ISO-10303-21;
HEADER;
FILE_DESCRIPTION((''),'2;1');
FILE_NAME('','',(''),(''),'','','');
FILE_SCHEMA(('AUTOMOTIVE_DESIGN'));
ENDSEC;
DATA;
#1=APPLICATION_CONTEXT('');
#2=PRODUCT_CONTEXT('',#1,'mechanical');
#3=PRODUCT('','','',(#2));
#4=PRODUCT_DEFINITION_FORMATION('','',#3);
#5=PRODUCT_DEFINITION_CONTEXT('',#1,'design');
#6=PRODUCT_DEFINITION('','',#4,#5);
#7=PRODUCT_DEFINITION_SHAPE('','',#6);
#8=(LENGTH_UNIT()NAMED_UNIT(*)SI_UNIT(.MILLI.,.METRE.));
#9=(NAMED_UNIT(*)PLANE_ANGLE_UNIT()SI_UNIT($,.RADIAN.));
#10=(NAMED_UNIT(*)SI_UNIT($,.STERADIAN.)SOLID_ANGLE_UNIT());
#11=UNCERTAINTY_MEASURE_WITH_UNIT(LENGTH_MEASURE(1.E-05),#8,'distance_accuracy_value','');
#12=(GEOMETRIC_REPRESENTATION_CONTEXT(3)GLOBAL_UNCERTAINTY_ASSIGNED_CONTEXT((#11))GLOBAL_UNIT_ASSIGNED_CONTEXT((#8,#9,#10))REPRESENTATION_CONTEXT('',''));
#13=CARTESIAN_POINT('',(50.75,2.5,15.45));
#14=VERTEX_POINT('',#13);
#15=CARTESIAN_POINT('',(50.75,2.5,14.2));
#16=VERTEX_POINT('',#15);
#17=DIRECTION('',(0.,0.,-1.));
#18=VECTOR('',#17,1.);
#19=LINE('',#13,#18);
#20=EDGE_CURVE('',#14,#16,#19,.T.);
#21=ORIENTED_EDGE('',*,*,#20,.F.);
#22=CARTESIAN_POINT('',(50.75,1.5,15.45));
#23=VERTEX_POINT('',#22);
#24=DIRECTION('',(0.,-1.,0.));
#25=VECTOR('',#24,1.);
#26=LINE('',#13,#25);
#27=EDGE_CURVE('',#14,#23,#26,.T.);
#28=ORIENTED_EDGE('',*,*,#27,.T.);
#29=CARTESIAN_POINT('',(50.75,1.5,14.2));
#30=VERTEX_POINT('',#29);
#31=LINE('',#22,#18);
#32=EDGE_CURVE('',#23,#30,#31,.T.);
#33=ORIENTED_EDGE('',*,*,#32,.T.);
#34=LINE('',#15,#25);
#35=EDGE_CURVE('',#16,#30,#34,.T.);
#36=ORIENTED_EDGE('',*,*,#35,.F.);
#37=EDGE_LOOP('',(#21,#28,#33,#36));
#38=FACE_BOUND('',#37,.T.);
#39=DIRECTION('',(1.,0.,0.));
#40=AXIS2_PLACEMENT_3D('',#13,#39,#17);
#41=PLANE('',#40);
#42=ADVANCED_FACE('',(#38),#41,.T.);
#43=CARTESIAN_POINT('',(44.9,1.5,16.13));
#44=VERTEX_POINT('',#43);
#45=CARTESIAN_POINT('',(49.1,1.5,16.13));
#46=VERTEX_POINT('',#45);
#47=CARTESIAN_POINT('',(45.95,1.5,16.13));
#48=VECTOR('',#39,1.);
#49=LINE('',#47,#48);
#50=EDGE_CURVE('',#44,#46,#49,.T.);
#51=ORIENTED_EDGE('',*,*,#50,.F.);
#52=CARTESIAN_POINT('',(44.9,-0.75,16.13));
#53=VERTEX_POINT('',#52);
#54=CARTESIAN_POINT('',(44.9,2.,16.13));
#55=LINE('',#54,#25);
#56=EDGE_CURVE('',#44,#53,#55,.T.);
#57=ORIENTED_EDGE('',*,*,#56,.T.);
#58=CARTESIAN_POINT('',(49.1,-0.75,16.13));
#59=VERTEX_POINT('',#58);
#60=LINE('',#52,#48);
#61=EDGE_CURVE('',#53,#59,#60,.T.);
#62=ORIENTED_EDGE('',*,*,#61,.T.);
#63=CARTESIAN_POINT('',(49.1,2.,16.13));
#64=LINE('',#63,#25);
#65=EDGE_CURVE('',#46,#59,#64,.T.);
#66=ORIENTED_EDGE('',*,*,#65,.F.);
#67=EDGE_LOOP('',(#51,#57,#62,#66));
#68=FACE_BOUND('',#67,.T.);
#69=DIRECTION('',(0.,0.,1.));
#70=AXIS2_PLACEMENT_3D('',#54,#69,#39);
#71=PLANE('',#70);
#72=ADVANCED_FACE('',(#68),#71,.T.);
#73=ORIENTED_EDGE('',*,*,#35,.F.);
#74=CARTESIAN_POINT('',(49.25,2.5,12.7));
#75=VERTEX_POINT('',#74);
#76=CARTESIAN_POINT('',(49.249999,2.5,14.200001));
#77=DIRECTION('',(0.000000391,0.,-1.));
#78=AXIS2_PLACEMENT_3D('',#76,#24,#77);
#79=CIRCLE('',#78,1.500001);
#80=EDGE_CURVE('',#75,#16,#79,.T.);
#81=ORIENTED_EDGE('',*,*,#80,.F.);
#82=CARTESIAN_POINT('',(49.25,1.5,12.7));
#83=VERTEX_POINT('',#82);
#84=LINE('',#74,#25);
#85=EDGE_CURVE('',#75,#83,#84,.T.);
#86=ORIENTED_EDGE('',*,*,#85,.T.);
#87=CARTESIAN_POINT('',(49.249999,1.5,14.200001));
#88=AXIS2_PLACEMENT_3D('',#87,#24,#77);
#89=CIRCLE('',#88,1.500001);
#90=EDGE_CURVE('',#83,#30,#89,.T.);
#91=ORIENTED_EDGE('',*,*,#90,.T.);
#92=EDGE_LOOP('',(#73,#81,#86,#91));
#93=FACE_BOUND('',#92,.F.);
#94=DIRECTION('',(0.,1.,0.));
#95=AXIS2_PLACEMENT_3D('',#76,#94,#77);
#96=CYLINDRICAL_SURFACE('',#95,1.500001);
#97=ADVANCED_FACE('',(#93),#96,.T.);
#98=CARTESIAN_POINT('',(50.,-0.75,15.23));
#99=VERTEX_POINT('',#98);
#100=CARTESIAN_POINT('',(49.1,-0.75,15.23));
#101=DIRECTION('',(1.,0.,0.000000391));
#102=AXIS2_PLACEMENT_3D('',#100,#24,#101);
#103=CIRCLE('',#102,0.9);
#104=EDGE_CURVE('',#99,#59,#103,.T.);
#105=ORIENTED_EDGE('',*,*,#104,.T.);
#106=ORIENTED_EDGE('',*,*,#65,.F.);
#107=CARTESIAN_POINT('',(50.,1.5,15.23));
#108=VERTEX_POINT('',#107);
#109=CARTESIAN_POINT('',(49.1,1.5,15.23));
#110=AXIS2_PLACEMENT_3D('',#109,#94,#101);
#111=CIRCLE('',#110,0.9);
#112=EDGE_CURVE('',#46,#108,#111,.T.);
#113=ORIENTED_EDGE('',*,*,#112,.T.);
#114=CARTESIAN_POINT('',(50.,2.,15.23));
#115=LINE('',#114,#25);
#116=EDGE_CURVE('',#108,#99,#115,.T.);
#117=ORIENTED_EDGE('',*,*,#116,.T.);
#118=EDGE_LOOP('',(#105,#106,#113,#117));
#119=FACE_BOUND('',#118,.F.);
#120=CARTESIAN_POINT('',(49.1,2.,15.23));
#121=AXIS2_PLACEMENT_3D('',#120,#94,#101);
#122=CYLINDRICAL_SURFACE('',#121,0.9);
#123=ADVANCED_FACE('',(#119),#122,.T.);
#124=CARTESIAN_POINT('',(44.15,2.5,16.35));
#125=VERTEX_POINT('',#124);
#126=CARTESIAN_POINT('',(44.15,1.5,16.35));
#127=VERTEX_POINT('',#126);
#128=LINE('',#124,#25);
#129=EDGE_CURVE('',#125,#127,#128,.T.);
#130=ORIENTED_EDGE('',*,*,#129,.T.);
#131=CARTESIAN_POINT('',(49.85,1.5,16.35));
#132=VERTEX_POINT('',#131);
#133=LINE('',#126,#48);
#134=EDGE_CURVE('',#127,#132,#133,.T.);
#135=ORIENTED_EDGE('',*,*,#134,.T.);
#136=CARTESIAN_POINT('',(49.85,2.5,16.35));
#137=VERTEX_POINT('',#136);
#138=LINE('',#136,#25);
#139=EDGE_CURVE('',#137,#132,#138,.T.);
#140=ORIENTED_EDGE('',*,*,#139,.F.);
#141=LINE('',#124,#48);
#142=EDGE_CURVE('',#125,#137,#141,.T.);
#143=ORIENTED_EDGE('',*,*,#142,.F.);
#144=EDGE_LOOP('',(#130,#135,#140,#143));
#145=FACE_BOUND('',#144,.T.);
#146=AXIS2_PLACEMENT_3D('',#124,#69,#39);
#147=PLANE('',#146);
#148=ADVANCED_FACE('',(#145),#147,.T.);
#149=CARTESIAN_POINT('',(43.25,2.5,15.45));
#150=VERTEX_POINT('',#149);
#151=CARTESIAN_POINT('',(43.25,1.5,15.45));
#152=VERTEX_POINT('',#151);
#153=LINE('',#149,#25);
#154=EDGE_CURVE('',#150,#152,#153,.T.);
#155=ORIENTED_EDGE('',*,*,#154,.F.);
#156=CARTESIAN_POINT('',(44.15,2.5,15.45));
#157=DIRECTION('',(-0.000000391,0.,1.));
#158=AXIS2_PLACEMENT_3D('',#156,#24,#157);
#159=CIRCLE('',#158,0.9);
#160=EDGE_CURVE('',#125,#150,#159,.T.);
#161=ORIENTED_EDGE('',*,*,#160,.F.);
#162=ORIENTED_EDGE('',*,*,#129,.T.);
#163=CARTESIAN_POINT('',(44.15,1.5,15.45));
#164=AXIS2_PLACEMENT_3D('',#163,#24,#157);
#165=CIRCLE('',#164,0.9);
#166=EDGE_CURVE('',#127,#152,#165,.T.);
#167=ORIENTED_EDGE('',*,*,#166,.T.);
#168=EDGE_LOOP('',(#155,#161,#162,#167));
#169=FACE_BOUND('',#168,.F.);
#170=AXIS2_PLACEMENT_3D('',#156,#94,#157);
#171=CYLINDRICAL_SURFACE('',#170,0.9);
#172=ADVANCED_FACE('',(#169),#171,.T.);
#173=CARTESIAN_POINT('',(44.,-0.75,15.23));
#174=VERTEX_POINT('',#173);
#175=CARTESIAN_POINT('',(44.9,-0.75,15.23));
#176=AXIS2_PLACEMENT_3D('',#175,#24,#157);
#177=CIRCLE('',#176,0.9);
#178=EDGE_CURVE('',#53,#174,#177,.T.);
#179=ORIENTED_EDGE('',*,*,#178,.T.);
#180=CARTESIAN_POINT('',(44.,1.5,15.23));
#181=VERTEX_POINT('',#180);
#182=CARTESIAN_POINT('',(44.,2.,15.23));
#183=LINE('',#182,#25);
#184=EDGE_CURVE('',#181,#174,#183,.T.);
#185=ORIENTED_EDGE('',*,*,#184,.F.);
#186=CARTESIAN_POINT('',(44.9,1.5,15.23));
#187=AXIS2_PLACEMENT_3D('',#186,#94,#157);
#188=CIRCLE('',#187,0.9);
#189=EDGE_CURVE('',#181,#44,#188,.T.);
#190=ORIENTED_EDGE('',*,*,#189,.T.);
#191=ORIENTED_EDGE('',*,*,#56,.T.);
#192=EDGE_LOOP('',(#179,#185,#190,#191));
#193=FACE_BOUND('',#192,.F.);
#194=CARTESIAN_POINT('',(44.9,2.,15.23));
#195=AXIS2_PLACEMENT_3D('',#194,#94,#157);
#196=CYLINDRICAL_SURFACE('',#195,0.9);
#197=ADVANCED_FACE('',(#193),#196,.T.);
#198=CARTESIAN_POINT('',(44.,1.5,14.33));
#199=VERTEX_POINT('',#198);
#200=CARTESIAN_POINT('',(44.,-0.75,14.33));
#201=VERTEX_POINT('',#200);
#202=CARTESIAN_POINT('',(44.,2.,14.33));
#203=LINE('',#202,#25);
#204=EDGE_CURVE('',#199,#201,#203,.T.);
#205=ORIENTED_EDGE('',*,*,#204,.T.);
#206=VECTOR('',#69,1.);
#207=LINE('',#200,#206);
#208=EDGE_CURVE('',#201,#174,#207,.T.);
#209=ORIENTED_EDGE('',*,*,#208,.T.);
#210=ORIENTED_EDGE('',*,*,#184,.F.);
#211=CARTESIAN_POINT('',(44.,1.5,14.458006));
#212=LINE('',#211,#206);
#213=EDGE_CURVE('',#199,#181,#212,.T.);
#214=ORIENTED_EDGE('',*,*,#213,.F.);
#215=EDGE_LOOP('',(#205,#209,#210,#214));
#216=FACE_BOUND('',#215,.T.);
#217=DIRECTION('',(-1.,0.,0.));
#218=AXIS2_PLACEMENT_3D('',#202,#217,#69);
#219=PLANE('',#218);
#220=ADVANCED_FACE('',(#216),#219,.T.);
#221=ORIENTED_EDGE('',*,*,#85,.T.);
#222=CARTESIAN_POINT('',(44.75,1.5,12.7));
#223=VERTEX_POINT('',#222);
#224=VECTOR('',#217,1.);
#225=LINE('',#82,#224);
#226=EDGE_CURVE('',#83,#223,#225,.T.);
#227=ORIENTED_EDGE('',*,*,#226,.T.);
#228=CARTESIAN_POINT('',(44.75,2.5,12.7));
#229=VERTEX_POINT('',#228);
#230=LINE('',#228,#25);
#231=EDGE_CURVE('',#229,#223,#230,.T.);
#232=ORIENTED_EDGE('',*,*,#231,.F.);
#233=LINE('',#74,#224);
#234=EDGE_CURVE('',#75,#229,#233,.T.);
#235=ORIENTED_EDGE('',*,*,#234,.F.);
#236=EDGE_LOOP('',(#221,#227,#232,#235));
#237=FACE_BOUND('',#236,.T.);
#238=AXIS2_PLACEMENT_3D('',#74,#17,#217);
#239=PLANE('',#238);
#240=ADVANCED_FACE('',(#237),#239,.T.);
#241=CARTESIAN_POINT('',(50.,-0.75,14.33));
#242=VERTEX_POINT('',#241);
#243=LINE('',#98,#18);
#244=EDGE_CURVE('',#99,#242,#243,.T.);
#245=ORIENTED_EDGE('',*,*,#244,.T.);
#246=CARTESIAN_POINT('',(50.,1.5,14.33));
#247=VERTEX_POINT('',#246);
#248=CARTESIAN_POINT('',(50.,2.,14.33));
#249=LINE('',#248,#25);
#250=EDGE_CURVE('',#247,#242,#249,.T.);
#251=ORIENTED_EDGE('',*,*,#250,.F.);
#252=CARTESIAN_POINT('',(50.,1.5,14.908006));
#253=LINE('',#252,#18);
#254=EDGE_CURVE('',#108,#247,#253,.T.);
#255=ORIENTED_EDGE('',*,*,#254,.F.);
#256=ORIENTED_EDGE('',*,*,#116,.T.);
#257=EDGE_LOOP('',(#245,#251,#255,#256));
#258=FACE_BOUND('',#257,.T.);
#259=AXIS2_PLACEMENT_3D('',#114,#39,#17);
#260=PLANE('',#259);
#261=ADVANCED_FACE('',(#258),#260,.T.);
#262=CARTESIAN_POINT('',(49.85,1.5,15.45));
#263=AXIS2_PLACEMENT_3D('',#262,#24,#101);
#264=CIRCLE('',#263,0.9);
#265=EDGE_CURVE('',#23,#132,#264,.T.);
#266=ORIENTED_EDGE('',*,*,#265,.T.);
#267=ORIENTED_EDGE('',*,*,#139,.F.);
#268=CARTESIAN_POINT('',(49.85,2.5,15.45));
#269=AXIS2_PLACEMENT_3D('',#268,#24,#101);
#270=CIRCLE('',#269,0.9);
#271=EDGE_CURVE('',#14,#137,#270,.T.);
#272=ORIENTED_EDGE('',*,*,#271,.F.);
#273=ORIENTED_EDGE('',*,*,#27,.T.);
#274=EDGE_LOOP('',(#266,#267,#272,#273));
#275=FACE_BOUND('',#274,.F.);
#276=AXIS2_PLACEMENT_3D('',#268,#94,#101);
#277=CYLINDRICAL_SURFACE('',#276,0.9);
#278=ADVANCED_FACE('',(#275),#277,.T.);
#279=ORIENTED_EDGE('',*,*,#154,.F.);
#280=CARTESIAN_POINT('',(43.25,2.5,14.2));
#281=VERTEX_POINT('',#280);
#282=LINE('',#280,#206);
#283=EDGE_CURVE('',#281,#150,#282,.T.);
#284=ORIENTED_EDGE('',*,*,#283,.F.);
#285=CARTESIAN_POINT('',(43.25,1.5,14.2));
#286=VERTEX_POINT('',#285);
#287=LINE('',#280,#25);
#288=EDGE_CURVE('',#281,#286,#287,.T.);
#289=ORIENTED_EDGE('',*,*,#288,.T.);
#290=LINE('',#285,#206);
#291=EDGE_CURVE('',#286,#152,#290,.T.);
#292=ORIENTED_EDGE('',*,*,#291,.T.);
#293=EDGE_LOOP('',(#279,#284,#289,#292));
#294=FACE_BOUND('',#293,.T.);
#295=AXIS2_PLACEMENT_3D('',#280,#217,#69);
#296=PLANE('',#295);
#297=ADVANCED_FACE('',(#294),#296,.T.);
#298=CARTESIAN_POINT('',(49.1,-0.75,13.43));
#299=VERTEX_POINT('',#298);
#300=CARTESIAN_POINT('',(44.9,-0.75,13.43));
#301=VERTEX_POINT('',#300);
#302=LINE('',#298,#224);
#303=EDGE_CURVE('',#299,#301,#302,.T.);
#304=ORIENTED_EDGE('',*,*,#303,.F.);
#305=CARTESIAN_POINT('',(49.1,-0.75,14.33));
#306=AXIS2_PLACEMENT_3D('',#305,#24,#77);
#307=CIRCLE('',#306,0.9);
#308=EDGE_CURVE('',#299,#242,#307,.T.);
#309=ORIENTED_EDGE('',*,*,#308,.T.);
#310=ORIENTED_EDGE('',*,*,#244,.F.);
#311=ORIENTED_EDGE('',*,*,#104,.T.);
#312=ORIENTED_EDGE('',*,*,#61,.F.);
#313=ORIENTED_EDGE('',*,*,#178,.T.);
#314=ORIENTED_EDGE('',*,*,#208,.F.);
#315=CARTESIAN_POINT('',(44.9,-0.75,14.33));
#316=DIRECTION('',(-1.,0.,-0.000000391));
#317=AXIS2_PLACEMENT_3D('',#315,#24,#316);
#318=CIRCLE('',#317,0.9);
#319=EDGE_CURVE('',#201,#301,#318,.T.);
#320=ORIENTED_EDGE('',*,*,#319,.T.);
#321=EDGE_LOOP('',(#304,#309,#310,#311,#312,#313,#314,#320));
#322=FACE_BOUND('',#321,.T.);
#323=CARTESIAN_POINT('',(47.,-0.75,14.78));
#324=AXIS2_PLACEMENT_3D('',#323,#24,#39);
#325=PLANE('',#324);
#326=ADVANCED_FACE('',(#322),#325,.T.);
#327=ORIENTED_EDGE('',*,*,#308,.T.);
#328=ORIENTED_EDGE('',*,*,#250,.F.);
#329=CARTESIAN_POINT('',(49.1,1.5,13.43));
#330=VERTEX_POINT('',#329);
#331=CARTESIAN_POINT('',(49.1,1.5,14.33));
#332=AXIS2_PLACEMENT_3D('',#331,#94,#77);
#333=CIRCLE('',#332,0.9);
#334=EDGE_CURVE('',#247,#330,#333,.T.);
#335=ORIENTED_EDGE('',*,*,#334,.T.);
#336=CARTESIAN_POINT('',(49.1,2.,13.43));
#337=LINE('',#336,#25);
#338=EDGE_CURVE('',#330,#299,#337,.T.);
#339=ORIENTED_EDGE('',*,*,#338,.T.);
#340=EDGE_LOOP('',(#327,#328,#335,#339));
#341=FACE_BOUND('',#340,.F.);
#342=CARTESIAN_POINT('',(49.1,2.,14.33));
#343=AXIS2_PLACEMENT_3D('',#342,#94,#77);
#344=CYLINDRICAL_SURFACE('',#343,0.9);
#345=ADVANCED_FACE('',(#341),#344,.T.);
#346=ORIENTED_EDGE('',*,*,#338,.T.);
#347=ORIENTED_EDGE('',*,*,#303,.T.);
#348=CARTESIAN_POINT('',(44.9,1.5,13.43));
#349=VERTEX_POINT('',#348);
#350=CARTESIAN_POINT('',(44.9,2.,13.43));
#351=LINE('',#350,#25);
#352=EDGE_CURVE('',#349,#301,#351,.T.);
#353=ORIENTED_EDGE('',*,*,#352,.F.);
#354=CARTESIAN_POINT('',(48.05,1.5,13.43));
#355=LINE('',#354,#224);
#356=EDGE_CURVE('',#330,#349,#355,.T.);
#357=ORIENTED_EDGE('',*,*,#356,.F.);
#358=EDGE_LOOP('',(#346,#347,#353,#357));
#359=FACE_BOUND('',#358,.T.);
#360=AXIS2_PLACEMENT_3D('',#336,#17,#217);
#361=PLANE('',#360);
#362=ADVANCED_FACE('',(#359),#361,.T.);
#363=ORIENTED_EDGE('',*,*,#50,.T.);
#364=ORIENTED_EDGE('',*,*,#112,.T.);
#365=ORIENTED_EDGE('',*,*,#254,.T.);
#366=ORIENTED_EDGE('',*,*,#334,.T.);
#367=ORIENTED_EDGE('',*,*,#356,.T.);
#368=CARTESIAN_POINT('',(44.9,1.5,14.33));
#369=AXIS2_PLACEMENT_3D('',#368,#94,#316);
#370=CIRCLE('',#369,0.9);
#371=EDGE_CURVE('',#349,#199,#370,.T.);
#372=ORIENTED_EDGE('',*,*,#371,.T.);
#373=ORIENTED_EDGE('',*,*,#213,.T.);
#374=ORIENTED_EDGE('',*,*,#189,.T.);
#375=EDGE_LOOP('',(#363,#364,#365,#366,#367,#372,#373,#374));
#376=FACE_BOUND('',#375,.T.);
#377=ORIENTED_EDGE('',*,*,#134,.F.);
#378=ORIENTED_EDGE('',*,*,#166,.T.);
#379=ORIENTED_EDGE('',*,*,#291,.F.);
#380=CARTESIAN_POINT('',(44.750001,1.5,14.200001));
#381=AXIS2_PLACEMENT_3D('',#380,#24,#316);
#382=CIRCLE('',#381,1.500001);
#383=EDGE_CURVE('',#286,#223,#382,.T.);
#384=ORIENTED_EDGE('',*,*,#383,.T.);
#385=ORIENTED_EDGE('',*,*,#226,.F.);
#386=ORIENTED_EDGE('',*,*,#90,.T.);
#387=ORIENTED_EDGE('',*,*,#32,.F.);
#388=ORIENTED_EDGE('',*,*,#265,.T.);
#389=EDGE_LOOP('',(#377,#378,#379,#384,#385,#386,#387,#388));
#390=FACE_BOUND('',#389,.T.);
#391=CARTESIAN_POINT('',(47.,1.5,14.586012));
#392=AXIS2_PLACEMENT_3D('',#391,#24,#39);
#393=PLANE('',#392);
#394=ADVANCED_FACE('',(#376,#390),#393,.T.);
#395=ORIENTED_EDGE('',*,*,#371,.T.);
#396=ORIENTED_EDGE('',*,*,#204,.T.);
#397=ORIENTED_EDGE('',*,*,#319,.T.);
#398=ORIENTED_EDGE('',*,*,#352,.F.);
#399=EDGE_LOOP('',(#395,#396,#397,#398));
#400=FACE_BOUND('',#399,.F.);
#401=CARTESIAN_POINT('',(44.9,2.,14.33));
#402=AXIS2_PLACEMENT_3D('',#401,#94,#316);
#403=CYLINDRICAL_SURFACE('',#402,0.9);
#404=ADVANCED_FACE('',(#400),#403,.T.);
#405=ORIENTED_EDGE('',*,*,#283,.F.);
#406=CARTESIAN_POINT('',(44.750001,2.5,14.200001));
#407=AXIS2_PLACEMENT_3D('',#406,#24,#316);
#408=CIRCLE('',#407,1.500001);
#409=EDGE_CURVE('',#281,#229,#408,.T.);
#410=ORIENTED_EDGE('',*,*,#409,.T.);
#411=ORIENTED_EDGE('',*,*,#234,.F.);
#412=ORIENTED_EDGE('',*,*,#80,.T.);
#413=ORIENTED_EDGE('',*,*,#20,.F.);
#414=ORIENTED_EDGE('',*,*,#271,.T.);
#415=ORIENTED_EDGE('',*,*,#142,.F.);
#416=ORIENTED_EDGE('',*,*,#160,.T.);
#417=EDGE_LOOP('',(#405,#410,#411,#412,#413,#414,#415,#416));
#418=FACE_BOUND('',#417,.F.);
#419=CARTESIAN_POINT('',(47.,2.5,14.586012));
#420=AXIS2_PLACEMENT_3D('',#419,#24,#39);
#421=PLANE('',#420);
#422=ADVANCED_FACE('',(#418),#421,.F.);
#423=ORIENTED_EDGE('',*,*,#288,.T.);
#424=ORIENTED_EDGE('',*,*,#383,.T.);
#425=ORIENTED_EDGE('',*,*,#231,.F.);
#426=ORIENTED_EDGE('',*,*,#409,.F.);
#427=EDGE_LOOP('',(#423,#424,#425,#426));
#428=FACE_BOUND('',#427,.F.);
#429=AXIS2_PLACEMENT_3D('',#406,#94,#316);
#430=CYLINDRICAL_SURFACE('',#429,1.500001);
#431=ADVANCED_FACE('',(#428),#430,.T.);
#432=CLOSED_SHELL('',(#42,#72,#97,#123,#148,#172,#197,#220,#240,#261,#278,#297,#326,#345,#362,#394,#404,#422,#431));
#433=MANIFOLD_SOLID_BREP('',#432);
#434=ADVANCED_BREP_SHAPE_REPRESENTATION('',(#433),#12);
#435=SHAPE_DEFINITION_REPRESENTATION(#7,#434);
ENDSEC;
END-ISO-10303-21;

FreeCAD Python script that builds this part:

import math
import FreeCAD as App
import Part
import Sketcher

V = App.Vector

doc = App.newDocument("Part")
body = doc.addObject("PartDesign::Body", "Body")

# Sketch on XZ plane
sketch1 = body.newObject("Sketcher::SketchObject", "Sketch")
sketch1.AttachmentSupport = (doc.getObject("XZ_Plane"), [""])
sketch1.MapMode = "FlatFace"
sketch1.addGeometry([
    Part.ArcOfCircle(Part.Circle(V(11.7, 15.45, 0), V(0, 0, 1), 0.9), math.radians(90.000022), math.radians(179.999978)),  # 0
    Part.LineSegment(V(10.8, 15.45, 0), V(10.8, 14.2, 0)),  # 1
    Part.ArcOfCircle(Part.Circle(V(12.300001, 14.200001, 0), V(0, 0, 1), 1.500001), math.radians(-179.999978), math.radians(-90.000022)),  # 2
    Part.LineSegment(V(12.3, 12.7, 0), V(16.8, 12.7, 0)),  # 3
    Part.ArcOfCircle(Part.Circle(V(16.799999, 14.200001, 0), V(0, 0, 1), 1.500001), math.radians(-89.999978), math.radians(-0.000022)),  # 4
    Part.LineSegment(V(18.3, 14.2, 0), V(18.3, 15.45, 0)),  # 5
    Part.ArcOfCircle(Part.Circle(V(17.4, 15.45, 0), V(0, 0, 1), 0.9), math.radians(0.000022), math.radians(89.999978)),  # 6
    Part.LineSegment(V(17.4, 16.35, 0), V(11.7, 16.35, 0)),  # 7
], False)
sketch1.addConstraint([
    Sketcher.Constraint("Tangent", 0, 2, 1, 1),
    Sketcher.Constraint("Tangent", 1, 2, 2, 1),
    Sketcher.Constraint("Tangent", 2, 2, 3, 1),
    Sketcher.Constraint("Tangent", 3, 2, 4, 1),
    Sketcher.Constraint("Tangent", 4, 2, 5, 1),
    Sketcher.Constraint("Tangent", 5, 2, 6, 1),
    Sketcher.Constraint("Tangent", 6, 2, 7, 1),
    Sketcher.Constraint("Tangent", 7, 2, 0, 1),
    Sketcher.Constraint("Vertical", 1),
    Sketcher.Constraint("Horizontal", 3),
    Sketcher.Constraint("Vertical", 5),
    Sketcher.Constraint("Horizontal", 7),
    Sketcher.Constraint("Equal", 2, 4),
    Sketcher.Constraint("Equal", 0, 6),
    Sketcher.Constraint("Radius", 0, 0.9),
    Sketcher.Constraint("Radius", 2, 1.500001),
    Sketcher.Constraint("DistanceX", 3, 1, 3, 2, 4.5),
    Sketcher.Constraint("DistanceY", 1, 2, 1, 1, 1.25),
    Sketcher.Constraint("DistanceX", -1, 1, 0, 3, 11.7),
    Sketcher.Constraint("DistanceY", -1, 1, 2, 3, 14.200001),
])
pad1 = body.newObject("PartDesign::Pad", "Pad")
pad1.Profile = sketch1
pad1.Length = 1
body2 = doc.addObject("PartDesign::Body", "Body001")
doc.recompute()

body.Placement = App.Placement(V(0, 2.5, 0), App.Rotation(V(0, 0, 1), 0))
boolean = body2.newObject("PartDesign::Boolean", "Boolean")
boolean.Type = "Fuse"
boolean.addObjects([body])
body3 = doc.addObject("PartDesign::Body", "Body002")

# Sketch on XZ plane
sketch2 = body3.newObject("Sketcher::SketchObject", "Sketch001")
sketch2.AttachmentSupport = (doc.getObject("XZ_Plane002"), [""])
sketch2.MapMode = "FlatFace"
sketch2.addGeometry([
    Part.ArcOfCircle(Part.Circle(V(12.75, 15.33, 0), V(0, 0, 1), 0.9), math.radians(90.000022), math.radians(179.999978)),  # 0
    Part.LineSegment(V(11.85, 15.33, 0), V(11.85, 14.43, 0)),  # 1
    Part.ArcOfCircle(Part.Circle(V(12.75, 14.43, 0), V(0, 0, 1), 0.9), math.radians(-179.999978), math.radians(-90.000022)),  # 2
    Part.LineSegment(V(12.75, 13.53, 0), V(16.95, 13.53, 0)),  # 3
    Part.ArcOfCircle(Part.Circle(V(16.95, 14.43, 0), V(0, 0, 1), 0.9), math.radians(-89.999978), math.radians(-0.000022)),  # 4
    Part.LineSegment(V(17.85, 14.43, 0), V(17.85, 15.33, 0)),  # 5
    Part.ArcOfCircle(Part.Circle(V(16.95, 15.33, 0), V(0, 0, 1), 0.9), math.radians(0.000022), math.radians(89.999978)),  # 6
    Part.LineSegment(V(16.95, 16.23, 0), V(12.75, 16.23, 0)),  # 7
], False)
sketch2.addConstraint([
    Sketcher.Constraint("Tangent", 0, 2, 1, 1),
    Sketcher.Constraint("Tangent", 1, 2, 2, 1),
    Sketcher.Constraint("Tangent", 2, 2, 3, 1),
    Sketcher.Constraint("Tangent", 3, 2, 4, 1),
    Sketcher.Constraint("Tangent", 4, 2, 5, 1),
    Sketcher.Constraint("Tangent", 5, 2, 6, 1),
    Sketcher.Constraint("Tangent", 6, 2, 7, 1),
    Sketcher.Constraint("Tangent", 7, 2, 0, 1),
    Sketcher.Constraint("Vertical", 1),
    Sketcher.Constraint("Horizontal", 3),
    Sketcher.Constraint("Vertical", 5),
    Sketcher.Constraint("Horizontal", 7),
    Sketcher.Constraint("Equal", 0, 2),
    Sketcher.Constraint("Equal", 2, 4),
    Sketcher.Constraint("Equal", 4, 6),
    Sketcher.Constraint("Radius", 0, 0.9),
    Sketcher.Constraint("DistanceX", 3, 1, 3, 2, 4.2),
    Sketcher.Constraint("DistanceY", 1, 2, 1, 1, 0.9),
    Sketcher.Constraint("DistanceX", -1, 1, 0, 3, 12.75),
    Sketcher.Constraint("DistanceY", -1, 1, 0, 3, 15.33),
])
pad2 = body3.newObject("PartDesign::Pad", "Pad001")
pad2.Profile = sketch2
pad2.Length = 2.75
body4 = doc.addObject("PartDesign::Body", "Body003")
doc.recompute()

body3.Placement = App.Placement(V(-0.3, 2, -0.1), App.Rotation(V(0, 0, 1), 0))
boolean2 = body4.newObject("PartDesign::Boolean", "Boolean001")
boolean2.Type = "Fuse"
boolean2.addObjects([body3])
doc.recompute()

boolean3 = body4.newObject("PartDesign::Boolean", "Boolean002")
boolean3.Type = "Fuse"
boolean3.addObjects([body2])
body5 = doc.addObject("PartDesign::Body", "Body004")
doc.recompute()

body4.Placement = App.Placement(V(32.45, 0, 0), App.Rotation(V(0, 0, 1), 0))
boolean4 = body5.newObject("PartDesign::Boolean", "Boolean003")
boolean4.Type = "Fuse"
boolean4.addObjects([body4])

doc.recompute()
